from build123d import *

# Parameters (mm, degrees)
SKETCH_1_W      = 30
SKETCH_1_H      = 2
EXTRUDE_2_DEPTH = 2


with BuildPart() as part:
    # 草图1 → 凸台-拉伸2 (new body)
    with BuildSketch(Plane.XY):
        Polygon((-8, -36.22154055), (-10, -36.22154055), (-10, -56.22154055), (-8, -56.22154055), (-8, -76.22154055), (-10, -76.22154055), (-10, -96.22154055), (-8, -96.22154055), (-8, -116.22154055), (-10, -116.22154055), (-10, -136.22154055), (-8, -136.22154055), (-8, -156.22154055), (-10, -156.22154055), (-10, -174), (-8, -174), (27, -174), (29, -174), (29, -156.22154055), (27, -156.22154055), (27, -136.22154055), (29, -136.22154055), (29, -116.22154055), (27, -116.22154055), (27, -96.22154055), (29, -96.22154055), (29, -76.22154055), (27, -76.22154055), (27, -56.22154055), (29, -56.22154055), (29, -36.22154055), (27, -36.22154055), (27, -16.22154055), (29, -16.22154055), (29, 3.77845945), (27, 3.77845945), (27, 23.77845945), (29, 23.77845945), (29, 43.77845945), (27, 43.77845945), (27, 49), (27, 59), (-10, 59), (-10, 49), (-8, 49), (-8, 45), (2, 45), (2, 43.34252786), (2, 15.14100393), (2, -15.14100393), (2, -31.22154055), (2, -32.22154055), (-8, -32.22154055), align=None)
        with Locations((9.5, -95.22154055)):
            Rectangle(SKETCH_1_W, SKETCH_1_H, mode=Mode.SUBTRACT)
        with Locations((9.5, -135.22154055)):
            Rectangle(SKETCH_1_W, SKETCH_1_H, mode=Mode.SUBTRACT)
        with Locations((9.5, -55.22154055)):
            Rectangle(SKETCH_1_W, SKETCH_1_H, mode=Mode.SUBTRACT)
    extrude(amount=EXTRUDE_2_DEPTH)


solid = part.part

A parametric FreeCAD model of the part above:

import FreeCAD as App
import Part
import Sketcher
Q = App.Units.Quantity

doc = App.newDocument("Part")
body = doc.addObject("PartDesign::Body", "Body")

# Sketch on XY plane
sketch1 = doc.addObject("Sketcher::SketchObject", "Sketch")
body.addObject(sketch1)
sketch1.AttachmentSupport = (doc.XY_Plane, [""])
sketch1.MapMode = "FlatFace"
sketch1.addGeometry([
    Part.LineSegment(App.Vector(-8, -36.2, 0), App.Vector(-10, -36.2, 0)),  # 0
    Part.LineSegment(App.Vector(-10, -36.2, 0), App.Vector(-10, -56.2, 0)),  # 1
    Part.LineSegment(App.Vector(-10, -56.2, 0), App.Vector(-8, -56.2, 0)),  # 2
    Part.LineSegment(App.Vector(-8, -56.2, 0), App.Vector(-8, -76.2, 0)),  # 3
    Part.LineSegment(App.Vector(-8, -76.2, 0), App.Vector(-10, -76.2, 0)),  # 4
    Part.LineSegment(App.Vector(-10, -76.2, 0), App.Vector(-10, -96.2, 0)),  # 5
    Part.LineSegment(App.Vector(-10, -96.2, 0), App.Vector(-8, -96.2, 0)),  # 6
    Part.LineSegment(App.Vector(-8, -96.2, 0), App.Vector(-8, -116.2, 0)),  # 7
    Part.LineSegment(App.Vector(-8, -116.2, 0), App.Vector(-10, -116.2, 0)),  # 8
    Part.LineSegment(App.Vector(-10, -116.2, 0), App.Vector(-10, -136.2, 0)),  # 9
    Part.LineSegment(App.Vector(-10, -136.2, 0), App.Vector(-8, -136.2, 0)),  # 10
    Part.LineSegment(App.Vector(-8, -136.2, 0), App.Vector(-8, -156.2, 0)),  # 11
    Part.LineSegment(App.Vector(-8, -156.2, 0), App.Vector(-10, -156.2, 0)),  # 12
    Part.LineSegment(App.Vector(-10, -156.2, 0), App.Vector(-10, -174, 0)),  # 13
    Part.LineSegment(App.Vector(-10, -174, 0), App.Vector(29, -174, 0)),  # 14
    Part.LineSegment(App.Vector(29, -174, 0), App.Vector(29, -156.2, 0)),  # 15
    Part.LineSegment(App.Vector(29, -156.2, 0), App.Vector(27, -156.2, 0)),  # 16
    Part.LineSegment(App.Vector(27, -156.2, 0), App.Vector(27, -136.2, 0)),  # 17
    Part.LineSegment(App.Vector(27, -136.2, 0), App.Vector(29, -136.2, 0)),  # 18
    Part.LineSegment(App.Vector(29, -136.2, 0), App.Vector(29, -116.2, 0)),  # 19
    Part.LineSegment(App.Vector(29, -116.2, 0), App.Vector(27, -116.2, 0)),  # 20
    Part.LineSegment(App.Vector(27, -116.2, 0), App.Vector(27, -96.2, 0)),  # 21
    Part.LineSegment(App.Vector(27, -96.2, 0), App.Vector(29, -96.2, 0)),  # 22
    Part.LineSegment(App.Vector(29, -96.2, 0), App.Vector(29, -76.2, 0)),  # 23
    Part.LineSegment(App.Vector(29, -76.2, 0), App.Vector(27, -76.2, 0)),  # 24
    Part.LineSegment(App.Vector(27, -76.2, 0), App.Vector(27, -56.2, 0)),  # 25
    Part.LineSegment(App.Vector(27, -56.2, 0), App.Vector(29, -56.2, 0)),  # 26
    Part.LineSegment(App.Vector(29, -56.2, 0), App.Vector(29, -36.2, 0)),  # 27
    Part.LineSegment(App.Vector(29, -36.2, 0), App.Vector(27, -36.2, 0)),  # 28
    Part.LineSegment(App.Vector(27, -36.2, 0), App.Vector(27, -16.2, 0)),  # 29
    Part.LineSegment(App.Vector(27, -16.2, 0), App.Vector(29, -16.2, 0)),  # 30
    Part.LineSegment(App.Vector(29, -16.2, 0), App.Vector(29, 3.8, 0)),  # 31
    Part.LineSegment(App.Vector(29, 3.8, 0), App.Vector(27, 3.8, 0)),  # 32
    Part.LineSegment(App.Vector(27, 3.8, 0), App.Vector(27, 23.8, 0)),  # 33
    Part.LineSegment(App.Vector(27, 23.8, 0), App.Vector(29, 23.8, 0)),  # 34
    Part.LineSegment(App.Vector(29, 23.8, 0), App.Vector(29, 43.8, 0)),  # 35
    Part.LineSegment(App.Vector(29, 43.8, 0), App.Vector(27, 43.8, 0)),  # 36
    Part.LineSegment(App.Vector(27, 43.8, 0), App.Vector(27, 59, 0)),  # 37
    Part.LineSegment(App.Vector(27, 59, 0), App.Vector(-10, 59, 0)),  # 38
    Part.LineSegment(App.Vector(-10, 59, 0), App.Vector(-10, 49, 0)),  # 39
    Part.LineSegment(App.Vector(-10, 49, 0), App.Vector(-8, 49, 0)),  # 40
    Part.LineSegment(App.Vector(-8, 49, 0), App.Vector(-8, 45, 0)),  # 41
    Part.LineSegment(App.Vector(-8, 45, 0), App.Vector(2, 45, 0)),  # 42
    Part.LineSegment(App.Vector(2, 45, 0), App.Vector(2, -32.2, 0)),  # 43
    Part.LineSegment(App.Vector(2, -32.2, 0), App.Vector(-8, -32.2, 0)),  # 44
    Part.LineSegment(App.Vector(-8, -32.2, 0), App.Vector(-8, -36.2, 0)),  # 45
    Part.LineSegment(App.Vector(24.5, -136.2, 0), App.Vector(-5.5, -136.2, 0)),  # 46
    Part.LineSegment(App.Vector(-5.5, -136.2, 0), App.Vector(-5.5, -134.2, 0)),  # 47
    Part.LineSegment(App.Vector(-5.5, -134.2, 0), App.Vector(24.5, -134.2, 0)),  # 48
    Part.LineSegment(App.Vector(24.5, -134.2, 0), App.Vector(24.5, -136.2, 0)),  # 49
    Part.LineSegment(App.Vector(24.5, -96.2, 0), App.Vector(-5.5, -96.2, 0)),  # 50
    Part.LineSegment(App.Vector(-5.5, -96.2, 0), App.Vector(-5.5, -94.2, 0)),  # 51
    Part.LineSegment(App.Vector(-5.5, -94.2, 0), App.Vector(24.5, -94.2, 0)),  # 52
    Part.LineSegment(App.Vector(24.5, -94.2, 0), App.Vector(24.5, -96.2, 0)),  # 53
    Part.LineSegment(App.Vector(24.5, -56.2, 0), App.Vector(-5.5, -56.2, 0)),  # 54
    Part.LineSegment(App.Vector(-5.5, -56.2, 0), App.Vector(-5.5, -54.2, 0)),  # 55
    Part.LineSegment(App.Vector(-5.5, -54.2, 0), App.Vector(24.5, -54.2, 0)),  # 56
    Part.LineSegment(App.Vector(24.5, -54.2, 0), App.Vector(24.5, -56.2, 0)),  # 57
], False)
sketch1.addConstraint([
    Sketcher.Constraint("Coincident", 0, 2, 1, 1),
    Sketcher.Constraint("Coincident", 1, 2, 2, 1),
    Sketcher.Constraint("Coincident", 2, 2, 3, 1),
    Sketcher.Constraint("Coincident", 3, 2, 4, 1),
    Sketcher.Constraint("Coincident", 4, 2, 5, 1),
    Sketcher.Constraint("Coincident", 5, 2, 6, 1),
    Sketcher.Constraint("Coincident", 6, 2, 7, 1),
    Sketcher.Constraint("Coincident", 7, 2, 8, 1),
    Sketcher.Constraint("Coincident", 8, 2, 9, 1),
    Sketcher.Constraint("Coincident", 9, 2, 10, 1),
    Sketcher.Constraint("Coincident", 10, 2, 11, 1),
    Sketcher.Constraint("Coincident", 11, 2, 12, 1),
    Sketcher.Constraint("Coincident", 12, 2, 13, 1),
    Sketcher.Constraint("Coincident", 13, 2, 14, 1),
    Sketcher.Constraint("Coincident", 14, 2, 15, 1),
    Sketcher.Constraint("Coincident", 15, 2, 16, 1),
    Sketcher.Constraint("Coincident", 16, 2, 17, 1),
    Sketcher.Constraint("Coincident", 17, 2, 18, 1),
    Sketcher.Constraint("Coincident", 18, 2, 19, 1),
    Sketcher.Constraint("Coincident", 19, 2, 20, 1),
    Sketcher.Constraint("Coincident", 20, 2, 21, 1),
    Sketcher.Constraint("Coincident", 21, 2, 22, 1),
    Sketcher.Constraint("Coincident", 22, 2, 23, 1),
    Sketcher.Constraint("Coincident", 23, 2, 24, 1),
    Sketcher.Constraint("Coincident", 24, 2, 25, 1),
    Sketcher.Constraint("Coincident", 25, 2, 26, 1),
    Sketcher.Constraint("Coincident", 26, 2, 27, 1),
    Sketcher.Constraint("Coincident", 27, 2, 28, 1),
    Sketcher.Constraint("Coincident", 28, 2, 29, 1),
    Sketcher.Constraint("Coincident", 29, 2, 30, 1),
    Sketcher.Constraint("Coincident", 30, 2, 31, 1),
    Sketcher.Constraint("Coincident", 31, 2, 32, 1),
    Sketcher.Constraint("Coincident", 32, 2, 33, 1),
    Sketcher.Constraint("Coincident", 33, 2, 34, 1),
    Sketcher.Constraint("Coincident", 34, 2, 35, 1),
    Sketcher.Constraint("Coincident", 35, 2, 36, 1),
    Sketcher.Constraint("Coincident", 36, 2, 37, 1),
    Sketcher.Constraint("Coincident", 37, 2, 38, 1),
    Sketcher.Constraint("Coincident", 38, 2, 39, 1),
    Sketcher.Constraint("Coincident", 39, 2, 40, 1),
    Sketcher.Constraint("Coincident", 40, 2, 41, 1),
    Sketcher.Constraint("Coincident", 41, 2, 42, 1),
    Sketcher.Constraint("Coincident", 42, 2, 43, 1),
    Sketcher.Constraint("Coincident", 43, 2, 44, 1),
    Sketcher.Constraint("Coincident", 44, 2, 45, 1),
    Sketcher.Constraint("Coincident", 45, 2, 0, 1),
    Sketcher.Constraint("Coincident", 46, 2, 47, 1),
    Sketcher.Constraint("Coincident", 47, 2, 48, 1),
    Sketcher.Constraint("Coincident", 48, 2, 49, 1),
    Sketcher.Constraint("Coincident", 49, 2, 46, 1),
    Sketcher.Constraint("Coincident", 50, 2, 51, 1),
    Sketcher.Constraint("Coincident", 51, 2, 52, 1),
    Sketcher.Constraint("Coincident", 52, 2, 53, 1),
    Sketcher.Constraint("Coincident", 53, 2, 50, 1),
    Sketcher.Constraint("Coincident", 54, 2, 55, 1),
    Sketcher.Constraint("Coincident", 55, 2, 56, 1),
    Sketcher.Constraint("Coincident", 56, 2, 57, 1),
    Sketcher.Constraint("Coincident", 57, 2, 54, 1),
    Sketcher.Constraint("Horizontal", 0),
    Sketcher.Constraint("Vertical", 1),
    Sketcher.Constraint("Horizontal", 2),
    Sketcher.Constraint("Vertical", 3),
    Sketcher.Constraint("Horizontal", 4),
    Sketcher.Constraint("Vertical", 5),
    Sketcher.Constraint("Horizontal", 6),
    Sketcher.Constraint("Vertical", 7),
    Sketcher.Constraint("Horizontal", 8),
    Sketcher.Constraint("Vertical", 9),
    Sketcher.Constraint("Horizontal", 10),
    Sketcher.Constraint("Vertical", 11),
    Sketcher.Constraint("Horizontal", 12),
    Sketcher.Constraint("Vertical", 13),
    Sketcher.Constraint("Horizontal", 14),
    Sketcher.Constraint("Vertical", 15),
    Sketcher.Constraint("Horizontal", 16),
    Sketcher.Constraint("Vertical", 17),
    Sketcher.Constraint("Horizontal", 18),
    Sketcher.Constraint("Vertical", 19),
    Sketcher.Constraint("Horizontal", 20),
    Sketcher.Constraint("Vertical", 21),
    Sketcher.Constraint("Horizontal", 22),
    Sketcher.Constraint("Vertical", 23),
    Sketcher.Constraint("Horizontal", 24),
    Sketcher.Constraint("Vertical", 25),
    Sketcher.Constraint("Horizontal", 26),
    Sketcher.Constraint("Vertical", 27),
    Sketcher.Constraint("Horizontal", 28),
    Sketcher.Constraint("Vertical", 29),
    Sketcher.Constraint("Horizontal", 30),
    Sketcher.Constraint("Vertical", 31),
    Sketcher.Constraint("Horizontal", 32),
    Sketcher.Constraint("Vertical", 33),
    Sketcher.Constraint("Horizontal", 34),
    Sketcher.Constraint("Vertical", 35),
    Sketcher.Constraint("Horizontal", 36),
    Sketcher.Constraint("Vertical", 37),
    Sketcher.Constraint("Horizontal", 38),
    Sketcher.Constraint("Vertical", 39),
    Sketcher.Constraint("Horizontal", 40),
    Sketcher.Constraint("Vertical", 41),
    Sketcher.Constraint("Horizontal", 42),
    Sketcher.Constraint("Vertical", 43),
    Sketcher.Constraint("Horizontal", 44),
    Sketcher.Constraint("Vertical", 45),
    Sketcher.Constraint("Horizontal", 46),
    Sketcher.Constraint("Vertical", 47),
    Sketcher.Constraint("Horizontal", 48),
    Sketcher.Constraint("Vertical", 49),
    Sketcher.Constraint("Horizontal", 50),
    Sketcher.Constraint("Vertical", 51),
    Sketcher.Constraint("Horizontal", 52),
    Sketcher.Constraint("Vertical", 53),
    Sketcher.Constraint("Horizontal", 54),
    Sketcher.Constraint("Vertical", 55),
    Sketcher.Constraint("Horizontal", 56),
    Sketcher.Constraint("Vertical", 57),
    Sketcher.Constraint("Horizontal", 12, 2, 15, 2),
    Sketcher.Constraint("Horizontal", 10, 2, 17, 2),
    Sketcher.Constraint("Horizontal", 8, 2, 19, 2),
    Sketcher.Constraint("Horizontal", 6, 2, 21, 2),
    Sketcher.Constraint("Horizontal", 4, 2, 23, 2),
    Sketcher.Constraint("Horizontal", 2, 2, 25, 2),
    Sketcher.Constraint("Horizontal", 0, 2, 27, 2),
    Sketcher.Constraint("Horizontal", 18, 2, 46, 2),
    Sketcher.Constraint("Horizontal", 22, 2, 50, 2),
    Sketcher.Constraint("Horizontal", 26, 2, 54, 2),
    Sketcher.Constraint("Vertical", 1, 2, 4, 2),
    Sketcher.Constraint("Vertical", 3, 2, 6, 2),
    Sketcher.Constraint("Vertical", 5, 2, 8, 2),
    Sketcher.Constraint("Vertical", 7, 2, 10, 2),
    Sketcher.Constraint("Vertical", 9, 2, 12, 2),
    Sketcher.Constraint("Vertical", 15, 2, 18, 2),
    Sketcher.Constraint("Vertical", 17, 2, 20, 2),
    Sketcher.Constraint("Vertical", 19, 2, 22, 2),
    Sketcher.Constraint("Vertical", 21, 2, 24, 2),
    Sketcher.Constraint("Vertical", 23, 2, 26, 2),
    Sketcher.Constraint("Vertical", 25, 2, 28, 2),
    Sketcher.Constraint("Vertical", 27, 2, 30, 2),
    Sketcher.Constraint("Vertical", 29, 2, 32, 2),
    Sketcher.Constraint("Vertical", 31, 2, 34, 2),
    Sketcher.Constraint("Vertical", 33, 2, 36, 2),
    Sketcher.Constraint("Vertical", 13, 2, 38, 2),
    Sketcher.Constraint("Vertical", 11, 2, 40, 2),
    Sketcher.Constraint("Vertical", 41, 2, 44, 2),
    Sketcher.Constraint("Vertical", 47, 2, 50, 2),
    Sketcher.Constraint("Vertical", 49, 2, 52, 2),
    Sketcher.Constraint("Vertical", 51, 2, 54, 2),
    Sketcher.Constraint("Vertical", 53, 2, 56, 2),
    Sketcher.Constraint("Equal", 12, 16),
    Sketcher.Constraint("Equal", 1, 3),
    Sketcher.Constraint("Equal", 3, 5),
    Sketcher.Constraint("Equal", 5, 7),
    Sketcher.Constraint("Equal", 7, 9),
    Sketcher.Constraint("Equal", 9, 11),
    Sketcher.Constraint("Equal", 27, 29),
    Sketcher.Constraint("Equal", 29, 31),
    Sketcher.Constraint("Equal", 31, 33),
    Sketcher.Constraint("Equal", 33, 35),
    Sketcher.Constraint("Equal", 44, 39),
    Sketcher.Constraint("Equal", 41, 45),
    Sketcher.Constraint("Equal", 40, 47),
    Sketcher.Constraint("Equal", 49, 51),
    Sketcher.Constraint("Equal", 53, 55),
    Sketcher.Constraint("DistanceX", 0, 2, 0, 1, Q("2 mm")),
    Sketcher.Constraint("DistanceX", 14, 1, 14, 2, Q("39 mm")),
    Sketcher.Constraint("DistanceX", 42, 1, 42, 2, Q("10 mm")),
    Sketcher.Constraint("DistanceX", 46, 2, 46, 1, Q("30 mm")),
    Sketcher.Constraint("DistanceY", 1, 2, 1, 1, Q("20 mm")),
    Sketcher.Constraint("DistanceY", 41, 2, 41, 1, Q("4 mm")),
    Sketcher.Constraint("DistanceX", 0, 2, -1, 1, Q("10 mm")),
    Sketcher.Constraint("DistanceY", 13, 2, -1, 1, Q("174 mm")),
    Sketcher.Constraint("DistanceY", -1, 1, 37, 2, Q("59 mm")),
    Sketcher.Constraint("DistanceX", 46, 2, -1, 1, Q("5.5 mm")),
    Sketcher.Constraint("DistanceY", 13, 2, 13, 1, Q("17.778459 mm")),
])
pad1 = doc.addObject("PartDesign::Pad", "Pad")
body.addObject(pad1)
pad1.Profile = sketch1
pad1.Length = 2

doc.recompute()
